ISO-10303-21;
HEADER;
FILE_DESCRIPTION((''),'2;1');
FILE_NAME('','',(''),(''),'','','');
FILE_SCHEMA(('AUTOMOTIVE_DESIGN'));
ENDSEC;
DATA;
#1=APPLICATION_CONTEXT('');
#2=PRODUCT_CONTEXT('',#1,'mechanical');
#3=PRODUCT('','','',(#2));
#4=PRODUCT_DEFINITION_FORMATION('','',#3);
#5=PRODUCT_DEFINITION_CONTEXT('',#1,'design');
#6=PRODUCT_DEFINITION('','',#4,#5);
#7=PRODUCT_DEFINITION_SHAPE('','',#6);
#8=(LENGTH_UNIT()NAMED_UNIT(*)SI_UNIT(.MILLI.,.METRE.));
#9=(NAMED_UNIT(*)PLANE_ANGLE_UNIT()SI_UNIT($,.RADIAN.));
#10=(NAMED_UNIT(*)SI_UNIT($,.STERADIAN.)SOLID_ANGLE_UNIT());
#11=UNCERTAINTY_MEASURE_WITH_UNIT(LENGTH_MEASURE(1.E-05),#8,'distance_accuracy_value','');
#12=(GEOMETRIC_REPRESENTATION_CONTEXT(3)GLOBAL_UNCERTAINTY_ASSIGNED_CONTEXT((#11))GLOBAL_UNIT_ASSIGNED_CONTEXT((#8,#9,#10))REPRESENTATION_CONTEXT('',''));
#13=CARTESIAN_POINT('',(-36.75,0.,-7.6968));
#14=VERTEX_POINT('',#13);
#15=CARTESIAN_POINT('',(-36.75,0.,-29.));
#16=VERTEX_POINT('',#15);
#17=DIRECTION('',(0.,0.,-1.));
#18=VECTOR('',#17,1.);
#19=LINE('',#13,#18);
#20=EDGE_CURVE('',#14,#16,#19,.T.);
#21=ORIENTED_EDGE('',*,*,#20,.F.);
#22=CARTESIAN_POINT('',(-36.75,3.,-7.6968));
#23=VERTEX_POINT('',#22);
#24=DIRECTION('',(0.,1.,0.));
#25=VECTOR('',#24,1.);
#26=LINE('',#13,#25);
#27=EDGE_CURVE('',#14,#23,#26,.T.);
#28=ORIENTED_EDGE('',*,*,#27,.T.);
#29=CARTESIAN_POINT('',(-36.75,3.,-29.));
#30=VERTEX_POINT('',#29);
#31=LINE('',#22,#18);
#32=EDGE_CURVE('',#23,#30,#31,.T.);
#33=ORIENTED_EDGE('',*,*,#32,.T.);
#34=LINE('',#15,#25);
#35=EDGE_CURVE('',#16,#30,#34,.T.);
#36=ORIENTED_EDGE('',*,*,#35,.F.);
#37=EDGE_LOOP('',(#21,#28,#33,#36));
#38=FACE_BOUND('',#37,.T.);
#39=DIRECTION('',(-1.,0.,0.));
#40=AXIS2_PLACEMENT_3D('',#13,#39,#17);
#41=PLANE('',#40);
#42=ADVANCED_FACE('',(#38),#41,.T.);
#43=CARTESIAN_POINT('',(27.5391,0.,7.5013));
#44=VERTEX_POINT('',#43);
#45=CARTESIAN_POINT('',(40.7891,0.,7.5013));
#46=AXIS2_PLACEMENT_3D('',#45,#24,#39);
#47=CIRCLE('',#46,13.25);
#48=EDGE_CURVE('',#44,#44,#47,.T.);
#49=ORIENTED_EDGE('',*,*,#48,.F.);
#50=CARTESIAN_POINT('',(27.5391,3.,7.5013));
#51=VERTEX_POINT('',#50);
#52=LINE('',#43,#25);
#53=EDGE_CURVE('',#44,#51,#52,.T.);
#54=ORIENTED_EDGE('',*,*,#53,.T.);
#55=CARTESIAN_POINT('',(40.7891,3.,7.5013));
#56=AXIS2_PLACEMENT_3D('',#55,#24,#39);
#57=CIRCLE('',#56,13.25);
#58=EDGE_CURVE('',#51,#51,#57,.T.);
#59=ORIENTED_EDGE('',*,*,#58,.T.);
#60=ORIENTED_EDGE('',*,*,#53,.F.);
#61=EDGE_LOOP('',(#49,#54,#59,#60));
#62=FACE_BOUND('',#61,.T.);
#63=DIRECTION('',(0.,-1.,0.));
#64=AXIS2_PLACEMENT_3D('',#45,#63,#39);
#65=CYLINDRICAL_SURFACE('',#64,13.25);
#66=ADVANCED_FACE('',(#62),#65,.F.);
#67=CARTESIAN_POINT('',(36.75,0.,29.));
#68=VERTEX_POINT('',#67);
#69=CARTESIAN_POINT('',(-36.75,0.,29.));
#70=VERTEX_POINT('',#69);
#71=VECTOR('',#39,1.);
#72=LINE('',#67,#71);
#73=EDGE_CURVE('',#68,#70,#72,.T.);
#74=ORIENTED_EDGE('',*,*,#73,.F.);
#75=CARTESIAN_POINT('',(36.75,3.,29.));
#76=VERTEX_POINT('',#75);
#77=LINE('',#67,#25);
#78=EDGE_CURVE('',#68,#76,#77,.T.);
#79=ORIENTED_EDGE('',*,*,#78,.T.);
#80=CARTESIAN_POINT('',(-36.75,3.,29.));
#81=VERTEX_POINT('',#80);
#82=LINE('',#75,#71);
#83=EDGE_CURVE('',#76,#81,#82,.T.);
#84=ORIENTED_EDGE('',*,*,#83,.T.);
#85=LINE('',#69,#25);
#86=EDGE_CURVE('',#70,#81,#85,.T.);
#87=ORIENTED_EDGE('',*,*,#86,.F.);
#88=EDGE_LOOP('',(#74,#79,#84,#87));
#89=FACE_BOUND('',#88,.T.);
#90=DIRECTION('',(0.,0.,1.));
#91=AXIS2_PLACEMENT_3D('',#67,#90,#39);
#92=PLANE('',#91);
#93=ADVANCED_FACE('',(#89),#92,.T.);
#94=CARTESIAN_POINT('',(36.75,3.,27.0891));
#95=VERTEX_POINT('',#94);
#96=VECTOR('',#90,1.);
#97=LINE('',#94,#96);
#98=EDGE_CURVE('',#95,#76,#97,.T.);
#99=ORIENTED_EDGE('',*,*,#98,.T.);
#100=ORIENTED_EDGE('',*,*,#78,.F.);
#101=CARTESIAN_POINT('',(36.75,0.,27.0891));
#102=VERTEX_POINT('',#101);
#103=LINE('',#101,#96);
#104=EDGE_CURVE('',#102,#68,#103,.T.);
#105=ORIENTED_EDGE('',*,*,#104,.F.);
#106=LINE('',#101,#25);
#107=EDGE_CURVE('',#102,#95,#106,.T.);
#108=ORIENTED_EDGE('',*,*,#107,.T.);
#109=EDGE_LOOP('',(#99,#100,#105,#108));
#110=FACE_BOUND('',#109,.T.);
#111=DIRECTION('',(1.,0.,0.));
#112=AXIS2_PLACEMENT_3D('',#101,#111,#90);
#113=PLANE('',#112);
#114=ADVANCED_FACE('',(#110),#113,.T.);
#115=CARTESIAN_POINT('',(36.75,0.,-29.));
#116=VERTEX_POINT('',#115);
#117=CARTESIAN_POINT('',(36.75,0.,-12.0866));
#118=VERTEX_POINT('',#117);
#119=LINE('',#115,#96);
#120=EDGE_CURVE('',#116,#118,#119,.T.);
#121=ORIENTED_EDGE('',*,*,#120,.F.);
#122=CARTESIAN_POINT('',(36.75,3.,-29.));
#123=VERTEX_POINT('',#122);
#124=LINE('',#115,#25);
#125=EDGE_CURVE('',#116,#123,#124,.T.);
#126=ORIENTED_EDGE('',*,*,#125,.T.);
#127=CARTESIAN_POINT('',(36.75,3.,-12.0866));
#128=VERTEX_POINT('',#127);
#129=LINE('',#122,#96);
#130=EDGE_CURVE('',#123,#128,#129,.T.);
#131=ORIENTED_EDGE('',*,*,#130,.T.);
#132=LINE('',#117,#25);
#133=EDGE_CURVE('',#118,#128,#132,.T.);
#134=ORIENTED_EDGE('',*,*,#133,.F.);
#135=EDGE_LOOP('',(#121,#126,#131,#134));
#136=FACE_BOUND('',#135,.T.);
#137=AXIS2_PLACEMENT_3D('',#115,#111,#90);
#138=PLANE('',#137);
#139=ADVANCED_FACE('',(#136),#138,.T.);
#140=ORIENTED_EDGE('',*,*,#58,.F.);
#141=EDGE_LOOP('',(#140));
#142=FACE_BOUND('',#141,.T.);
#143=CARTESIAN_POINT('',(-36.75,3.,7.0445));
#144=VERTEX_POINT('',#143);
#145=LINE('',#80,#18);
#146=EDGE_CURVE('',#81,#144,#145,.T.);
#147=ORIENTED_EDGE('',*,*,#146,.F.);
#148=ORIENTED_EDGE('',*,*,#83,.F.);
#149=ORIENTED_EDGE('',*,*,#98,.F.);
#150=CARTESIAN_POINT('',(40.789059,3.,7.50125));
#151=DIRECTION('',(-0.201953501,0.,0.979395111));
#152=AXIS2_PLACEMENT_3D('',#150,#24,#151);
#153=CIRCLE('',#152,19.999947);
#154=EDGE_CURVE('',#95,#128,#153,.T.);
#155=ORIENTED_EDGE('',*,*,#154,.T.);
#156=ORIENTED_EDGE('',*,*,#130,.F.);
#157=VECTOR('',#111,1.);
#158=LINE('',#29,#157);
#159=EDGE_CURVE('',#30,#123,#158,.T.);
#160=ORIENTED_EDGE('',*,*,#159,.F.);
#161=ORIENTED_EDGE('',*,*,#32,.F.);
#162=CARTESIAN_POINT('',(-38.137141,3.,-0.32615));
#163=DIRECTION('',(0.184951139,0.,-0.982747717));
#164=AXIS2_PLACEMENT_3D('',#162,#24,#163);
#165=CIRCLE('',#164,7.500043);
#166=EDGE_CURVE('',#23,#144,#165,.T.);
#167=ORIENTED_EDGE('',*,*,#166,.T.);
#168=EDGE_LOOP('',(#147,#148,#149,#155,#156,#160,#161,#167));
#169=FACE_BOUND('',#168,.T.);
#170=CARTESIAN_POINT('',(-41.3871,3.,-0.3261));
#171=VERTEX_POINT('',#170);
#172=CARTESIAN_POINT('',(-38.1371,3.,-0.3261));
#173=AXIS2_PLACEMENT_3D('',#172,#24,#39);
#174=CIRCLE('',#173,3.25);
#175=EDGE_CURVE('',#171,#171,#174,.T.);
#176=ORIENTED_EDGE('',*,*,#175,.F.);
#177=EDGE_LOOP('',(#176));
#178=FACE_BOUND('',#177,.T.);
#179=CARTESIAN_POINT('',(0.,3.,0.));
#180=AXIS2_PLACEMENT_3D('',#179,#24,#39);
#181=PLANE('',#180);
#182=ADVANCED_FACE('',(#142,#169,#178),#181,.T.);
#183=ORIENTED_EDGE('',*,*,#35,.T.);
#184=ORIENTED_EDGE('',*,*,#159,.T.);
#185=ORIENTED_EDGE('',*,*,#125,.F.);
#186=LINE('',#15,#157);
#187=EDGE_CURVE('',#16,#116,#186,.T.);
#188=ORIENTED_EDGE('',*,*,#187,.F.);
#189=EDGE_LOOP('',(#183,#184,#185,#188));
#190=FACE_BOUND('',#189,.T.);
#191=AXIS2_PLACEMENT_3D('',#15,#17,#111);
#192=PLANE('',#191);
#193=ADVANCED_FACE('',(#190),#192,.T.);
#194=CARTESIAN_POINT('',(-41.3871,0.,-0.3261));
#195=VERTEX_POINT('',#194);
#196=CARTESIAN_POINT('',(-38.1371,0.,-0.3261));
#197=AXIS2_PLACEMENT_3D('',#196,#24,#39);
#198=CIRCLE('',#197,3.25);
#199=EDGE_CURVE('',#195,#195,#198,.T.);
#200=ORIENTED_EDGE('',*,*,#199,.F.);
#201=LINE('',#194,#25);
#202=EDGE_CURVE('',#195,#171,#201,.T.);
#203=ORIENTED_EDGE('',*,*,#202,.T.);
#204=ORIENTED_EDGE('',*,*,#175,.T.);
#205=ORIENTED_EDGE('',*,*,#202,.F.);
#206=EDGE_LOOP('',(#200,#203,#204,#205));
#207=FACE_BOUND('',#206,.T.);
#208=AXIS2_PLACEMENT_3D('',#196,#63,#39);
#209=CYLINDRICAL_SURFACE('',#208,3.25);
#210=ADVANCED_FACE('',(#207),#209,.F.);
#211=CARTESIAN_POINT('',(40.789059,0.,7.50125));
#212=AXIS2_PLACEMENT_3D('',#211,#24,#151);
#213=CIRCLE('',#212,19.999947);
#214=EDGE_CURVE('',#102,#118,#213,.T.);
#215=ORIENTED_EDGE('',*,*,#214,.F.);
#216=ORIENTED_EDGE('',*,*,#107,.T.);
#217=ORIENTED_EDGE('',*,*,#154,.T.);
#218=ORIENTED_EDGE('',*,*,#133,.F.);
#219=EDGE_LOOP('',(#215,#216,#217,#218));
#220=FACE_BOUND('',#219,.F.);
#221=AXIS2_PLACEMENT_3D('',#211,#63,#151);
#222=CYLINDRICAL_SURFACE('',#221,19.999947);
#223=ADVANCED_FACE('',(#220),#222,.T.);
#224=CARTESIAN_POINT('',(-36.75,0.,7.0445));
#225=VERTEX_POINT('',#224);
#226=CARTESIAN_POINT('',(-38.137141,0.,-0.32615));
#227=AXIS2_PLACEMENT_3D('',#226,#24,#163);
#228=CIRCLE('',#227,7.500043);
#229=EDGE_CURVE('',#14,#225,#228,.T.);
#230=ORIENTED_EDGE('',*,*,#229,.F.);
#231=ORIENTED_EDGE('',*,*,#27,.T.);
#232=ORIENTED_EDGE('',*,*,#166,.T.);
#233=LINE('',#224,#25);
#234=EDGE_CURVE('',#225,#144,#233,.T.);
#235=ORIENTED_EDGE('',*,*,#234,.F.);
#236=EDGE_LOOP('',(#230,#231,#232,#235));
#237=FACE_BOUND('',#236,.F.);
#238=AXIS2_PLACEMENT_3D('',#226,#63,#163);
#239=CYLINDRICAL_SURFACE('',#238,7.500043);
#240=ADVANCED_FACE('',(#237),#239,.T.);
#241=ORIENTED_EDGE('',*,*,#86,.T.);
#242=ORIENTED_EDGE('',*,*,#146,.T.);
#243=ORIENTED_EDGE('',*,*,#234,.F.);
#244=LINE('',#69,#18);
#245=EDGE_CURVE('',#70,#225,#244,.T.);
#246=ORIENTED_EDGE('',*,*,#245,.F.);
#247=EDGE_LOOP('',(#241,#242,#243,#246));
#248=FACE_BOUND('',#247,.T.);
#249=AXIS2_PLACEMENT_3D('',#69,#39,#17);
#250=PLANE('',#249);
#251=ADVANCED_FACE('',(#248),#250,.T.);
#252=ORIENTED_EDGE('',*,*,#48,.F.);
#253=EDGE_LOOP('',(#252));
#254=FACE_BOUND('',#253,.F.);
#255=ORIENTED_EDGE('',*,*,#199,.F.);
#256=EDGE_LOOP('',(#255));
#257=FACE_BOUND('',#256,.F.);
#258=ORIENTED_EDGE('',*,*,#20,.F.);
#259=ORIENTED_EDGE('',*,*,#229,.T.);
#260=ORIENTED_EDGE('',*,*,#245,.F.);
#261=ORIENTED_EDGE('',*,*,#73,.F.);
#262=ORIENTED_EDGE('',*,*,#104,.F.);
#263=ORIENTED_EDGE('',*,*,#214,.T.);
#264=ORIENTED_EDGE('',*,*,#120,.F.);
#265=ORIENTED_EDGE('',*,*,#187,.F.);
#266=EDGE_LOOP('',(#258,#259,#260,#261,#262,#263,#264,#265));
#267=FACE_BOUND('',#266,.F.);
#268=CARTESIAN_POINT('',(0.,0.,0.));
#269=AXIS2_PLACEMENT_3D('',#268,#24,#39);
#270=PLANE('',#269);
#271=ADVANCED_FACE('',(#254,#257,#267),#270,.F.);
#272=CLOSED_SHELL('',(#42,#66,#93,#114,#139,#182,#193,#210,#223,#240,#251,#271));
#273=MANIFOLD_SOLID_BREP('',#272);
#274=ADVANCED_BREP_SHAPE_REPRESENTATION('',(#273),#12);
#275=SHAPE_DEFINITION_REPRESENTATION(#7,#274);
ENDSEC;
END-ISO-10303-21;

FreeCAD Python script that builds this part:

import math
import FreeCAD as App
import Part
import Sketcher
Q = App.Units.Quantity

doc = App.newDocument("Part")
params = doc.addObject("Spreadsheet::Sheet", "Params")
for row, (alias, value) in enumerate([
    ("sketch1_radius", "20 mm"),
    ("sketch1_diameter", "6.5 mm"),
    ("sketch1_diameter2", "26.5 mm"),
    ("sketch1_width", "73.5 mm"),
    ("sketch1_radius2", "7.5 mm"),
    ("pad1_length", "3 mm"),
], start=1):
    params.set(f"A{row}", alias)
    params.set(f"B{row}", "=" + value)
    params.setAlias(f"B{row}", alias)

body = doc.addObject("PartDesign::Body", "Body")

sketch1 = body.newObject("Sketcher::SketchObject", "Sketch")
sketch1.AttachmentSupport = (doc.getObject("XZ_Plane"), [""])
sketch1.MapMode = "FlatFace"
sketch1.addGeometry([
    Part.LineSegment(App.Vector(-36.8, 7, 0), App.Vector(-36.8, 29, 0)),
    Part.LineSegment(App.Vector(-36.8, 29, 0), App.Vector(36.8, 29, 0)),
    Part.LineSegment(App.Vector(36.8, 29, 0), App.Vector(36.8, 27.1, 0)),
    Part.ArcOfCircle(Part.Circle(App.Vector(40.8, 7.5, 0), App.Vector(0, 0, 1), 20), math.radians(-102), math.radians(102)),
    Part.LineSegment(App.Vector(36.8, -12.1, 0), App.Vector(36.8, -29, 0)),
    Part.LineSegment(App.Vector(36.8, -29, 0), App.Vector(-36.8, -29, 0)),
    Part.LineSegment(App.Vector(-36.8, -29, 0), App.Vector(-36.8, -7.7, 0)),
    Part.ArcOfCircle(Part.Circle(App.Vector(-38.1, -0.3, 0), App.Vector(0, 0, 1), 7.5), math.radians(79), math.radians(281)),
    Part.Circle(App.Vector(-38.1, -0.3, 0), App.Vector(0, 0, 1), 3.2),
    Part.Circle(App.Vector(40.8, 7.5, 0), App.Vector(0, 0, 1), 13.2),
], False)
sketch1.addConstraint([
    Sketcher.Constraint("Coincident", 0, 2, 1, 1),
    Sketcher.Constraint("Coincident", 1, 2, 2, 1),
    Sketcher.Constraint("Coincident", 2, 2, 3, 2),
    Sketcher.Constraint("Coincident", 3, 1, 4, 1),
    Sketcher.Constraint("Coincident", 4, 2, 5, 1),
    Sketcher.Constraint("Coincident", 5, 2, 6, 1),
    Sketcher.Constraint("Coincident", 6, 2, 7, 2),
    Sketcher.Constraint("Coincident", 7, 1, 0, 1),
    Sketcher.Constraint("Vertical", 0),
    Sketcher.Constraint("Horizontal", 1),
    Sketcher.Constraint("Vertical", 2),
    Sketcher.Constraint("Vertical", 4),
    Sketcher.Constraint("Horizontal", 5),
    Sketcher.Constraint("Vertical", 6),
    Sketcher.Constraint("Coincident", 8, 3, 7, 3),
    Sketcher.Constraint("Coincident", 9, 3, 3, 3),
    Sketcher.Constraint("Symmetric", 0, 2, 4, 2, -1, 1),
    Sketcher.Constraint("Vertical", 2, 2, 3, 1),
    Sketcher.Constraint("Vertical", 0, 2, 5, 2),
    Sketcher.Constraint("Radius", 3, Q("20 mm")),
    Sketcher.Constraint("Diameter", 8, Q("6.5 mm")),
    Sketcher.Constraint("Diameter", 9, Q("26.5 mm")),
    Sketcher.Constraint("DistanceX", 1, 1, 1, 2, Q("73.5 mm")),
    Sketcher.Constraint("DistanceY", 4, 2, 1, 2, Q("58 mm")),
    Sketcher.Constraint("Radius", 7, Q("7.5 mm")),
    Sketcher.Constraint("DistanceY", 2, 2, 2, 1, Q("1.911 mm")),
    Sketcher.Constraint("DistanceY", 0, 1, 0, 2, Q("21.9555 mm")),
    Sketcher.Constraint("DistanceY", 4, 2, 4, 1, Q("16.9134 mm")),
    Sketcher.Constraint("DistanceY", 6, 1, 6, 2, Q("21.3032 mm")),
])
sketch1.setExpression("Constraints[19]", "Params.sketch1_radius")
sketch1.setExpression("Constraints[20]", "Params.sketch1_diameter")
sketch1.setExpression("Constraints[21]", "Params.sketch1_diameter2")
sketch1.setExpression("Constraints[22]", "Params.sketch1_width")
sketch1.setExpression("Constraints[24]", "Params.sketch1_radius2")
pad1 = body.newObject("PartDesign::Pad", "Pad")
pad1.Profile = sketch1
pad1.setExpression("Length", "Params.pad1_length")
pad1.Reversed = True

doc.recompute()
